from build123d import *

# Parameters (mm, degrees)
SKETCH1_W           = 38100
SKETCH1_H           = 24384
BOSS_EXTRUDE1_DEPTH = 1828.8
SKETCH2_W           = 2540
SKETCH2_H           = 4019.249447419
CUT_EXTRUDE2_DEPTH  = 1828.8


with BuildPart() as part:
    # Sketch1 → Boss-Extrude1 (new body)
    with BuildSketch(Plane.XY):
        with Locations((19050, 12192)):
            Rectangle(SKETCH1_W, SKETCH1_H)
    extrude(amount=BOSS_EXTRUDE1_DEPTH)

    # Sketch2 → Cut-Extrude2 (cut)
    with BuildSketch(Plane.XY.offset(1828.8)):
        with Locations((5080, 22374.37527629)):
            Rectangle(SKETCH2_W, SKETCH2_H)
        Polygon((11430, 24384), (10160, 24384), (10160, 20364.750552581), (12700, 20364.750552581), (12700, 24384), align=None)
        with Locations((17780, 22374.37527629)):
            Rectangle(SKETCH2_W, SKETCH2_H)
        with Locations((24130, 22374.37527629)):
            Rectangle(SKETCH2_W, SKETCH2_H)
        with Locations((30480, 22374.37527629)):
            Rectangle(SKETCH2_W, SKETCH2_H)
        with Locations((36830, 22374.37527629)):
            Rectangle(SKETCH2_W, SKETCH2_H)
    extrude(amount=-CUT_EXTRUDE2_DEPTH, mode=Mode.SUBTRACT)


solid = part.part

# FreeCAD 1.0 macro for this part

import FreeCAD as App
import Part
import Sketcher

V = App.Vector
Q = App.Units.Quantity

doc = App.newDocument("Part")
body = doc.addObject("PartDesign::Body", "Body")

# Sketch on XY plane
sketch1 = body.newObject("Sketcher::SketchObject", "Sketch")
sketch1.AttachmentSupport = (doc.getObject("XY_Plane"), [""])
sketch1.MapMode = "FlatFace"
sketch1.addGeometry(Part.LineSegment(V(0, 24384, 0), V(0, 0, 0)), False)
sketch1.addGeometry(Part.LineSegment(V(0, 0, 0), V(38100, 0, 0)), False)
sketch1.addGeometry(Part.LineSegment(V(38100, 0, 0), V(38100, 24384, 0)), False)
sketch1.addGeometry(Part.LineSegment(V(38100, 24384, 0), V(0, 24384, 0)), False)
sketch1.addConstraint(Sketcher.Constraint("Coincident", 0, 2, 1, 1))
sketch1.addConstraint(Sketcher.Constraint("Coincident", 1, 2, 2, 1))
sketch1.addConstraint(Sketcher.Constraint("Coincident", 2, 2, 3, 1))
sketch1.addConstraint(Sketcher.Constraint("Coincident", 3, 2, 0, 1))
sketch1.addConstraint(Sketcher.Constraint("Vertical", 0))
sketch1.addConstraint(Sketcher.Constraint("Horizontal", 1))
sketch1.addConstraint(Sketcher.Constraint("Vertical", 2))
sketch1.addConstraint(Sketcher.Constraint("Horizontal", 3))
sketch1.addConstraint(Sketcher.Constraint("Coincident", 0, 2, -1, 1))
sketch1.addConstraint(Sketcher.Constraint("DistanceX", 1, 1, 1, 2, Q("1500 in")))
sketch1.addConstraint(Sketcher.Constraint("DistanceY", 0, 2, 0, 1, Q("960 in")))
pad1 = body.newObject("PartDesign::Pad", "Pad")
pad1.Profile = sketch1
pad1.Length = Q("72 in")

# Sketch on XY plane
sketch2 = body.newObject("Sketcher::SketchObject", "Sketch001")
sketch2.AttachmentSupport = (doc.getObject("XY_Plane"), [""])
sketch2.MapMode = "FlatFace"
sketch2.AttachmentOffset = App.Placement(V(0, 0, 72 * 25.4), App.Rotation())
sketch2.addGeometry(Part.LineSegment(V(3810, 24384, 0), V(3810, 20364.750553, 0)), False)
sketch2.addGeometry(Part.LineSegment(V(3810, 20364.750553, 0), V(6350, 20364.750553, 0)), False)
sketch2.addGeometry(Part.LineSegment(V(6350, 20364.750553, 0), V(6350, 24384, 0)), False)
sketch2.addGeometry(Part.LineSegment(V(6350, 24384, 0), V(3810, 24384, 0)), False)
sketch2.addGeometry(Part.LineSegment(V(10160, 24384, 0), V(10160, 20364.750553, 0)), False)
sketch2.addGeometry(Part.LineSegment(V(10160, 20364.750553, 0), V(12700, 20364.750553, 0)), False)
sketch2.addGeometry(Part.LineSegment(V(12700, 20364.750553, 0), V(12700, 24384, 0)), False)
sketch2.addGeometry(Part.LineSegment(V(12700, 24384, 0), V(10160, 24384, 0)), False)
sketch2.addGeometry(Part.LineSegment(V(16510, 24384, 0), V(16510, 20364.750553, 0)), False)
sketch2.addGeometry(Part.LineSegment(V(16510, 20364.750553, 0), V(19050, 20364.750553, 0)), False)
sketch2.addGeometry(Part.LineSegment(V(19050, 20364.750553, 0), V(19050, 24384, 0)), False)
sketch2.addGeometry(Part.LineSegment(V(19050, 24384, 0), V(16510, 24384, 0)), False)
sketch2.addGeometry(Part.LineSegment(V(22860, 24384, 0), V(22860, 20364.750553, 0)), False)
sketch2.addGeometry(Part.LineSegment(V(22860, 20364.750553, 0), V(25400, 20364.750553, 0)), False)
sketch2.addGeometry(Part.LineSegment(V(25400, 20364.750553, 0), V(25400, 24384, 0)), False)
sketch2.addGeometry(Part.LineSegment(V(25400, 24384, 0), V(22860, 24384, 0)), False)
sketch2.addGeometry(Part.LineSegment(V(29210, 24384, 0), V(29210, 20364.750553, 0)), False)
sketch2.addGeometry(Part.LineSegment(V(29210, 20364.750553, 0), V(31750, 20364.750553, 0)), False)
sketch2.addGeometry(Part.LineSegment(V(31750, 20364.750553, 0), V(31750, 24384, 0)), False)
sketch2.addGeometry(Part.LineSegment(V(31750, 24384, 0), V(29210, 24384, 0)), False)
sketch2.addGeometry(Part.LineSegment(V(35560, 24384, 0), V(35560, 20364.750553, 0)), False)
sketch2.addGeometry(Part.LineSegment(V(35560, 20364.750553, 0), V(38100, 20364.750553, 0)), False)
sketch2.addGeometry(Part.LineSegment(V(38100, 20364.750553, 0), V(38100, 24384, 0)), False)
sketch2.addGeometry(Part.LineSegment(V(38100, 24384, 0), V(35560, 24384, 0)), False)
sketch2.addConstraint(Sketcher.Constraint("Coincident", 0, 2, 1, 1))
sketch2.addConstraint(Sketcher.Constraint("Coincident", 1, 2, 2, 1))
sketch2.addConstraint(Sketcher.Constraint("Coincident", 2, 2, 3, 1))
sketch2.addConstraint(Sketcher.Constraint("Coincident", 3, 2, 0, 1))
sketch2.addConstraint(Sketcher.Constraint("Coincident", 4, 2, 5, 1))
sketch2.addConstraint(Sketcher.Constraint("Coincident", 5, 2, 6, 1))
sketch2.addConstraint(Sketcher.Constraint("Coincident", 6, 2, 7, 1))
sketch2.addConstraint(Sketcher.Constraint("Coincident", 7, 2, 4, 1))
sketch2.addConstraint(Sketcher.Constraint("Coincident", 8, 2, 9, 1))
sketch2.addConstraint(Sketcher.Constraint("Coincident", 9, 2, 10, 1))
sketch2.addConstraint(Sketcher.Constraint("Coincident", 10, 2, 11, 1))
sketch2.addConstraint(Sketcher.Constraint("Coincident", 11, 2, 8, 1))
sketch2.addConstraint(Sketcher.Constraint("Coincident", 12, 2, 13, 1))
sketch2.addConstraint(Sketcher.Constraint("Coincident", 13, 2, 14, 1))
sketch2.addConstraint(Sketcher.Constraint("Coincident", 14, 2, 15, 1))
sketch2.addConstraint(Sketcher.Constraint("Coincident", 15, 2, 12, 1))
sketch2.addConstraint(Sketcher.Constraint("Coincident", 16, 2, 17, 1))
sketch2.addConstraint(Sketcher.Constraint("Coincident", 17, 2, 18, 1))
sketch2.addConstraint(Sketcher.Constraint("Coincident", 18, 2, 19, 1))
sketch2.addConstraint(Sketcher.Constraint("Coincident", 19, 2, 16, 1))
sketch2.addConstraint(Sketcher.Constraint("Coincident", 20, 2, 21, 1))
sketch2.addConstraint(Sketcher.Constraint("Coincident", 21, 2, 22, 1))
sketch2.addConstraint(Sketcher.Constraint("Coincident", 22, 2, 23, 1))
sketch2.addConstraint(Sketcher.Constraint("Coincident", 23, 2, 20, 1))
sketch2.addConstraint(Sketcher.Constraint("Vertical", 0))
sketch2.addConstraint(Sketcher.Constraint("Horizontal", 1))
sketch2.addConstraint(Sketcher.Constraint("Vertical", 2))
sketch2.addConstraint(Sketcher.Constraint("Horizontal", 3))
sketch2.addConstraint(Sketcher.Constraint("Vertical", 4))
sketch2.addConstraint(Sketcher.Constraint("Horizontal", 5))
sketch2.addConstraint(Sketcher.Constraint("Vertical", 6))
sketch2.addConstraint(Sketcher.Constraint("Horizontal", 7))
sketch2.addConstraint(Sketcher.Constraint("Vertical", 8))
sketch2.addConstraint(Sketcher.Constraint("Horizontal", 9))
sketch2.addConstraint(Sketcher.Constraint("Vertical", 10))
sketch2.addConstraint(Sketcher.Constraint("Horizontal", 11))
sketch2.addConstraint(Sketcher.Constraint("Vertical", 12))
sketch2.addConstraint(Sketcher.Constraint("Horizontal", 13))
sketch2.addConstraint(Sketcher.Constraint("Vertical", 14))
sketch2.addConstraint(Sketcher.Constraint("Horizontal", 15))
sketch2.addConstraint(Sketcher.Constraint("Vertical", 16))
sketch2.addConstraint(Sketcher.Constraint("Horizontal", 17))
sketch2.addConstraint(Sketcher.Constraint("Vertical", 18))
sketch2.addConstraint(Sketcher.Constraint("Horizontal", 19))
sketch2.addConstraint(Sketcher.Constraint("Vertical", 20))
sketch2.addConstraint(Sketcher.Constraint("Horizontal", 21))
sketch2.addConstraint(Sketcher.Constraint("Vertical", 22))
sketch2.addConstraint(Sketcher.Constraint("Horizontal", 23))
sketch2.addConstraint(Sketcher.Constraint("Horizontal", 1, 2, 4, 2))
sketch2.addConstraint(Sketcher.Constraint("Horizontal", 3, 2, 6, 2))
sketch2.addConstraint(Sketcher.Constraint("Horizontal", 5, 2, 8, 2))
sketch2.addConstraint(Sketcher.Constraint("Horizontal", 7, 2, 10, 2))
sketch2.addConstraint(Sketcher.Constraint("Horizontal", 9, 2, 12, 2))
sketch2.addConstraint(Sketcher.Constraint("Horizontal", 11, 2, 14, 2))
sketch2.addConstraint(Sketcher.Constraint("Horizontal", 13, 2, 16, 2))
sketch2.addConstraint(Sketcher.Constraint("Horizontal", 15, 2, 18, 2))
sketch2.addConstraint(Sketcher.Constraint("Horizontal", 17, 2, 20, 2))
sketch2.addConstraint(Sketcher.Constraint("Horizontal", 19, 2, 22, 2))
sketch2.addConstraint(Sketcher.Constraint("Equal", 3, 5))
sketch2.addConstraint(Sketcher.Constraint("Equal", 7, 9))
sketch2.addConstraint(Sketcher.Constraint("Equal", 11, 13))
sketch2.addConstraint(Sketcher.Constraint("Equal", 15, 17))
sketch2.addConstraint(Sketcher.Constraint("Equal", 19, 21))
sketch2.addConstraint(Sketcher.Constraint("DistanceX", 1, 1, 1, 2, Q("100 in")))
sketch2.addConstraint(Sketcher.Constraint("DistanceX", -1, 1, 0, 2, Q("150 in")))
sketch2.addConstraint(Sketcher.Constraint("DistanceY", -1, 1, 2, 2, Q("960 in")))
sketch2.addConstraint(Sketcher.Constraint("DistanceX", -1, 1, 4, 2, Q("400 in")))
sketch2.addConstraint(Sketcher.Constraint("DistanceX", -1, 1, 8, 2, Q("650 in")))
sketch2.addConstraint(Sketcher.Constraint("DistanceX", -1, 1, 12, 2, Q("900 in")))
sketch2.addConstraint(Sketcher.Constraint("DistanceX", -1, 1, 16, 2, Q("1150 in")))
sketch2.addConstraint(Sketcher.Constraint("DistanceX", -1, 1, 20, 2, Q("1400 in")))
sketch2.addConstraint(Sketcher.Constraint("DistanceY", 0, 2, 0, 1, Q("4019.249447 mm")))
pocket1 = body.newObject("PartDesign::Pocket", "Pocket")
pocket1.Profile = sketch2
pocket1.Length = Q("72 in")

doc.recompute()
